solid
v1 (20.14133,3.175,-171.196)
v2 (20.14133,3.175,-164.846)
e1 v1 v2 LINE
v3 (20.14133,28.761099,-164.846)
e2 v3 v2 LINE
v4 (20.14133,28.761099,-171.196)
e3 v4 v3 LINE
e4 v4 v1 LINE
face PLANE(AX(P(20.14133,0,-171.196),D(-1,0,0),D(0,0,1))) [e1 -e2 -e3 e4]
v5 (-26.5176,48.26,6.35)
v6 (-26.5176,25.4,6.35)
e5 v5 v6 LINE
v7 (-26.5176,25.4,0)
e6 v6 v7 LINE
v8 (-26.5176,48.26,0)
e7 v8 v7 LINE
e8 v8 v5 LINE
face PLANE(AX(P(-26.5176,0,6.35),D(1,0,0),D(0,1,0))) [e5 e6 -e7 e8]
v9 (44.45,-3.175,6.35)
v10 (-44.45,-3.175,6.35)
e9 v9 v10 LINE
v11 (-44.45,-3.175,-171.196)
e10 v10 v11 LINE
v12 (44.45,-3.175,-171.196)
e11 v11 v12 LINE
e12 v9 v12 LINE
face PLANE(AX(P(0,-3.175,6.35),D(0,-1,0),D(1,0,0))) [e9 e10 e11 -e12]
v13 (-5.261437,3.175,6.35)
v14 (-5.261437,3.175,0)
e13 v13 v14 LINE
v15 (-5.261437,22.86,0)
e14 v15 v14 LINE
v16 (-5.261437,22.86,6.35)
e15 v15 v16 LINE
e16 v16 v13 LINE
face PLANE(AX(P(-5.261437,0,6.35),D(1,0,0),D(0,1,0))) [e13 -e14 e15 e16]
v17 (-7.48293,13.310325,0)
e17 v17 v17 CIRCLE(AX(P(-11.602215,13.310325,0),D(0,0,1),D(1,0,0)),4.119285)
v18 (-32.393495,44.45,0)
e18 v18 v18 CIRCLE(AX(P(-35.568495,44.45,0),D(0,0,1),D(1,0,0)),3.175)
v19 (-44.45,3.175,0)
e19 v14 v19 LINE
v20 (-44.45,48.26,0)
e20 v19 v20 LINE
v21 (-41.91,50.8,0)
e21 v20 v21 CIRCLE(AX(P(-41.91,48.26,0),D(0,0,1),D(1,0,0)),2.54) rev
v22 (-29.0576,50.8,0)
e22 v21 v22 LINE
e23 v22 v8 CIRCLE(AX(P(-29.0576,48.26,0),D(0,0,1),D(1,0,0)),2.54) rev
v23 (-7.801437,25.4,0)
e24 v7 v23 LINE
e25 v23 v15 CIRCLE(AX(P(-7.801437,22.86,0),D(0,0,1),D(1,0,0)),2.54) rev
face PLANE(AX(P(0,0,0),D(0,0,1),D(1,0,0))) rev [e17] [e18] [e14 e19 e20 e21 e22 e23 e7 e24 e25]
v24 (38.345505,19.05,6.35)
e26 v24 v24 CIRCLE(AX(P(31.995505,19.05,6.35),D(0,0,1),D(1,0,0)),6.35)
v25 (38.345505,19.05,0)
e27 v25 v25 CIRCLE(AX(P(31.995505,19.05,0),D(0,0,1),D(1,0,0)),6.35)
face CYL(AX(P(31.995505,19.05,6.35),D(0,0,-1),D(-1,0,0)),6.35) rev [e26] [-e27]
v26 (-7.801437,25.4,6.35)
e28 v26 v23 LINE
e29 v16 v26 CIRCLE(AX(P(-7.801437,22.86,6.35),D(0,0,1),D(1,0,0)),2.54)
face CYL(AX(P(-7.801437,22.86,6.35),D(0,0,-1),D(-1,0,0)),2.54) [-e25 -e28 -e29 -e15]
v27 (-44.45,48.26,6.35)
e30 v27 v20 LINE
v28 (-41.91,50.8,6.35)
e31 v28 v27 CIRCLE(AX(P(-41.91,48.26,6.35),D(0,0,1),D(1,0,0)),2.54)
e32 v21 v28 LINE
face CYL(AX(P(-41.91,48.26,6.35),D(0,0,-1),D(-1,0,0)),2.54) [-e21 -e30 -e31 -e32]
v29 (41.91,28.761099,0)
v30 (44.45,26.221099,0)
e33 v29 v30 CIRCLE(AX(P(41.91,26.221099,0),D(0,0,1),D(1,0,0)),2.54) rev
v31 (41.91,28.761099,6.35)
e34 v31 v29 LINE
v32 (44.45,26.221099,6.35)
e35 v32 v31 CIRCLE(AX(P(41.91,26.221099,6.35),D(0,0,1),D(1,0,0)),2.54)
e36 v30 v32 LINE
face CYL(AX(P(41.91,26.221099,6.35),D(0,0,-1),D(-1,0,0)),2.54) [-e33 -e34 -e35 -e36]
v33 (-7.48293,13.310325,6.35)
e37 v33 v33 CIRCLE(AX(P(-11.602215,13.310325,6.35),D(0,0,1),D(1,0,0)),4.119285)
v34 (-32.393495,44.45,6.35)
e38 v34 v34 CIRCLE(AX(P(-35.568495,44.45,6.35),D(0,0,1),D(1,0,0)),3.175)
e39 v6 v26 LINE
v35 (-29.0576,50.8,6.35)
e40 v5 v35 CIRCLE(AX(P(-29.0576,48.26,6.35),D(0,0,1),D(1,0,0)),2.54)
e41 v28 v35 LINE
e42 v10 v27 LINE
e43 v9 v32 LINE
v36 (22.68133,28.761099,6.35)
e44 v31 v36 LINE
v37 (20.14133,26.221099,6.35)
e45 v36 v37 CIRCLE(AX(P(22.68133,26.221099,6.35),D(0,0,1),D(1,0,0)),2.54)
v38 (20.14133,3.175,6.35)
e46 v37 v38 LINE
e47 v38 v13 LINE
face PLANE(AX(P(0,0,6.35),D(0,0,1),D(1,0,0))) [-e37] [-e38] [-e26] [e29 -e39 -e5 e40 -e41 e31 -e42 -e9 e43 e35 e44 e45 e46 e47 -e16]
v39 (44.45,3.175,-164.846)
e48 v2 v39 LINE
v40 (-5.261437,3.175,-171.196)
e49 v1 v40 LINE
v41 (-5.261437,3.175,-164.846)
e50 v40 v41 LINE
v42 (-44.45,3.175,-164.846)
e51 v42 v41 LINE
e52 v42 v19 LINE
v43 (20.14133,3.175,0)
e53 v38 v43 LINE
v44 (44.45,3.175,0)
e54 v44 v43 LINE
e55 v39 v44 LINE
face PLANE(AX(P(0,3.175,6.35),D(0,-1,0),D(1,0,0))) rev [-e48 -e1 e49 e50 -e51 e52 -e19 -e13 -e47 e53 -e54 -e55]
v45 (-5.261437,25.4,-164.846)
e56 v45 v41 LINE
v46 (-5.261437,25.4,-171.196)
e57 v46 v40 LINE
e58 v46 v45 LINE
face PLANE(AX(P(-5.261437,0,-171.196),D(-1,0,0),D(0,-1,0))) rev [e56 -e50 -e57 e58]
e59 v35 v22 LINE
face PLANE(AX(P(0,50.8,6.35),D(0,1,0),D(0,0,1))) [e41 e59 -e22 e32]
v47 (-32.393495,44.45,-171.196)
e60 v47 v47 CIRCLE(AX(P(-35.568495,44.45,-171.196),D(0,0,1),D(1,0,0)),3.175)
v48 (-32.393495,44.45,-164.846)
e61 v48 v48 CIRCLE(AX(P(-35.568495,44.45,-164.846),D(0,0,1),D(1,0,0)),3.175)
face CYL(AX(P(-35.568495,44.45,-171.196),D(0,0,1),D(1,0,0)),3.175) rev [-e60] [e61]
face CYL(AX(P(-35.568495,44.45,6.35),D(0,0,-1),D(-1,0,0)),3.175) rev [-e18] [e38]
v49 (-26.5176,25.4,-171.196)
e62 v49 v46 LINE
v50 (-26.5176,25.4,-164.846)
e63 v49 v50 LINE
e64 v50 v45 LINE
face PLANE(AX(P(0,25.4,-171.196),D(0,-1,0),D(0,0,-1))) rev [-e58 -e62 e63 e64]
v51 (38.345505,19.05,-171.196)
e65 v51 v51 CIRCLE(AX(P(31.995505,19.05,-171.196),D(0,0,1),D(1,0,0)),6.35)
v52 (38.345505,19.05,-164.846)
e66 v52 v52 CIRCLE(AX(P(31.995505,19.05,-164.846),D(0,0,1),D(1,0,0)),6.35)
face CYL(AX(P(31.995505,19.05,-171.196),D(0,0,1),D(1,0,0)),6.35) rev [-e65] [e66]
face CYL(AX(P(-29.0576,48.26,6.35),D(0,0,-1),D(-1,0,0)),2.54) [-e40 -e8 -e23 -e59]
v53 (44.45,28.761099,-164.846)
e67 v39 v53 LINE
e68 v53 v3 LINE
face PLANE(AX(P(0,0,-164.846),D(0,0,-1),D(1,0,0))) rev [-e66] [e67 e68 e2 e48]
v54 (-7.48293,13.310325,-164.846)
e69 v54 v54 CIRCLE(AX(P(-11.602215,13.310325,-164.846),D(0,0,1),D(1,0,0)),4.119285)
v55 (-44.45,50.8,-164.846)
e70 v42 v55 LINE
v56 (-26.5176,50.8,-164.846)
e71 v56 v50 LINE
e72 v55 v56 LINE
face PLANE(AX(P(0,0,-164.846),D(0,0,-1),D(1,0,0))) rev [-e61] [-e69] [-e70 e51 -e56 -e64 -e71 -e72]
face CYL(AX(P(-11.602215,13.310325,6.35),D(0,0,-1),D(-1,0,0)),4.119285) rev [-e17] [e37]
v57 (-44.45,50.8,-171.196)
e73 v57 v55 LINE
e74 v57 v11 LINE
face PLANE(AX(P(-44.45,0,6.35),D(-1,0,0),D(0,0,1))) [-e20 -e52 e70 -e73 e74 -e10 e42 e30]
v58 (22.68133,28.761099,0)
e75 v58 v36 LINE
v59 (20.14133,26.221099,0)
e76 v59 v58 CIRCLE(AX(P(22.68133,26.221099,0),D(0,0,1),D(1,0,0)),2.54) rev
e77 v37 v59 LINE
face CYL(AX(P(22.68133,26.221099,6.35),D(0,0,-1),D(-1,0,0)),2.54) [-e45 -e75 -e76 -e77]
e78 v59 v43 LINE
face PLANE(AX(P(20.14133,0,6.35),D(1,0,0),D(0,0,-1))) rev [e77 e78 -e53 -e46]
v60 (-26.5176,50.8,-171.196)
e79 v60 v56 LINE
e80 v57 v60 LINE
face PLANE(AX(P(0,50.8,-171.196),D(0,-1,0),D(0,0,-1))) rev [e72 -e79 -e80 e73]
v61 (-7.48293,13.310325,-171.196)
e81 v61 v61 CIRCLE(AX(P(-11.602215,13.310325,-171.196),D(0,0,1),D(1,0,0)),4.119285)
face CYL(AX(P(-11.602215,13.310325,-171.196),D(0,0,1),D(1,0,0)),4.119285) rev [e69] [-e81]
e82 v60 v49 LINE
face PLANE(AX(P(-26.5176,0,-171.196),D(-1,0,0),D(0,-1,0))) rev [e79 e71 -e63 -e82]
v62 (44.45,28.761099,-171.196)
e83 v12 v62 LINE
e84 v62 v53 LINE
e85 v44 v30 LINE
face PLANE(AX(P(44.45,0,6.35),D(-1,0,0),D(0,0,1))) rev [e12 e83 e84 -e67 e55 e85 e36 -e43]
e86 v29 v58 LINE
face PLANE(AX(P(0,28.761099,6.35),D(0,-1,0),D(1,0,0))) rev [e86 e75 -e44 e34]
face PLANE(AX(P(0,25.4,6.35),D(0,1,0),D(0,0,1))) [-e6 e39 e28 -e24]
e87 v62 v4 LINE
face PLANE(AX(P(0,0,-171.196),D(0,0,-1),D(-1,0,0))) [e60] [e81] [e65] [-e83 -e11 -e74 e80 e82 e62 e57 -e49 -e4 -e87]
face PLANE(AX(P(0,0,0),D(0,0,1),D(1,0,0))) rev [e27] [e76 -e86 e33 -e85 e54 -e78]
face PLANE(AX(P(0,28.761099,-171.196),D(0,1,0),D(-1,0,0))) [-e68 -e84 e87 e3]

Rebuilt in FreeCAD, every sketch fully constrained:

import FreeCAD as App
import Part
import Sketcher
Q = App.Units.Quantity


def edges_at(feature, points):
    """Names of the edges that pass closest to the given points."""
    edges = feature.Shape.Edges
    near = lambda p: min(range(len(edges)), key=lambda i: edges[i].distToShape(Part.Vertex(*p))[0])
    return sorted({f"Edge{near(p) + 1}" for p in points})

doc = App.newDocument("Part")
params = doc.addObject("Spreadsheet::Sheet", "Params")
for row, (alias, value) in enumerate([
    ("sketch1_diameter", "0.5 in"),
    ("sketch1_diameter2", "0.25 in"),
    ("sketch1_height", "1 in"),
    ("sketch1_width", "3.5 in"),
    ("sketch1_width2", "0.706 in"),
    ("pad1_length", "0.25 in"),
    ("sketch2_width", "3.5 in"),
    ("sketch2_height", "0.25 in"),
    ("pad2_length", "6.99 in"),
    ("fillet_radius", "0.1 in"),
], start=1):
    params.set(f"A{row}", alias)
    params.set(f"B{row}", "=" + value)
    params.setAlias(f"B{row}", alias)

body = doc.addObject("PartDesign::Body", "Body")

# Sketch on XY plane
sketch1 = doc.addObject("Sketcher::SketchObject", "Sketch")
body.addObject(sketch1)
sketch1.AttachmentSupport = (doc.XY_Plane, [""])
sketch1.MapMode = "FlatFace"
sketch1.addGeometry([
    Part.LineSegment(App.Vector(44.5, 28.8, 0), App.Vector(20.1, 28.8, 0)),  # 0
    Part.LineSegment(App.Vector(20.1, 28.8, 0), App.Vector(20.1, 3.2, 0)),  # 1
    Part.LineSegment(App.Vector(20.1, 3.2, 0), App.Vector(-5.3, 3.2, 0)),  # 2
    Part.LineSegment(App.Vector(-5.3, 3.2, 0), App.Vector(-5.3, 25.4, 0)),  # 3
    Part.LineSegment(App.Vector(-5.3, 25.4, 0), App.Vector(-26.5, 25.4, 0)),  # 4
    Part.LineSegment(App.Vector(-26.5, 25.4, 0), App.Vector(-26.5, 50.8, 0)),  # 5
    Part.LineSegment(App.Vector(-26.5, 50.8, 0), App.Vector(-44.5, 50.8, 0)),  # 6
    Part.LineSegment(App.Vector(-44.5, 50.8, 0), App.Vector(-44.5, -3.2, 0)),  # 7
    Part.LineSegment(App.Vector(-44.5, -3.2, 0), App.Vector(44.5, -3.2, 0)),  # 8
    Part.LineSegment(App.Vector(44.5, -3.2, 0), App.Vector(44.5, 28.8, 0)),  # 9
    Part.Circle(App.Vector(-11.6, 13.3, 0), App.Vector(0, 0, 1), 4.1),  # 10
    Part.Circle(App.Vector(32, 19.1, 0), App.Vector(0, 0, 1), 6.3),  # 11
    Part.Circle(App.Vector(-35.6, 44.5, 0), App.Vector(0, 0, 1), 3.2),  # 12
], False)
sketch1.addConstraint([
    Sketcher.Constraint("Coincident", 0, 2, 1, 1),
    Sketcher.Constraint("Coincident", 1, 2, 2, 1),
    Sketcher.Constraint("Coincident", 2, 2, 3, 1),
    Sketcher.Constraint("Coincident", 3, 2, 4, 1),
    Sketcher.Constraint("Coincident", 4, 2, 5, 1),
    Sketcher.Constraint("Coincident", 5, 2, 6, 1),
    Sketcher.Constraint("Coincident", 6, 2, 7, 1),
    Sketcher.Constraint("Coincident", 7, 2, 8, 1),
    Sketcher.Constraint("Coincident", 8, 2, 9, 1),
    Sketcher.Constraint("Coincident", 9, 2, 0, 1),
    Sketcher.Constraint("Horizontal", 0),
    Sketcher.Constraint("Vertical", 1),
    Sketcher.Constraint("Horizontal", 2),
    Sketcher.Constraint("Vertical", 3),
    Sketcher.Constraint("Horizontal", 4),
    Sketcher.Constraint("Vertical", 5),
    Sketcher.Constraint("Horizontal", 6),
    Sketcher.Constraint("Vertical", 7),
    Sketcher.Constraint("Horizontal", 8),
    Sketcher.Constraint("Vertical", 9),
    Sketcher.Constraint("Diameter", 11, Q("0.5 in")),
    Sketcher.Constraint("Diameter", 12, Q("0.25 in")),
    Sketcher.Constraint("DistanceY", 5, 1, 5, 2, Q("1 in")),
    Sketcher.Constraint("DistanceX", 8, 1, 8, 2, Q("3.5 in")),
    Sketcher.Constraint("DistanceY", -1, 1, 3, 2, Q("1 in")),
    Sketcher.Constraint("DistanceY", 11, 3, 12, 3, Q("1 in")),
    Sketcher.Constraint("DistanceX", 6, 2, 6, 1, Q("0.706 in")),
    Sketcher.Constraint("DistanceY", 3, 1, 3, 2, Q("0.875 in")),
    Sketcher.Constraint("DistanceY", 7, 2, 7, 1, Q("2.125 in")),
    Sketcher.Constraint("DistanceY", -1, 1, 11, 3, Q("0.75 in")),
    Sketcher.Constraint("DistanceX", 6, 2, -1, 1, Q("1.75 in")),
    Sketcher.Constraint("DistanceX", 12, 3, 11, 3, Q("2.66 in")),
    Sketcher.Constraint("Diameter", 10, 8.23857),
    Sketcher.Constraint("DistanceY", 1, 2, 1, 1, 25.586099),
    Sketcher.Constraint("DistanceX", 0, 2, 11, 3, Q("0.4666998 in")),
    Sketcher.Constraint("DistanceX", 0, 2, 0, 1, 24.30867),
    Sketcher.Constraint("DistanceX", 2, 2, 2, 1, 25.402767),
    Sketcher.Constraint("DistanceX", 10, 3, 11, 3, 43.597721),
    Sketcher.Constraint("DistanceY", -1, 1, 10, 3, 13.310325),
])
sketch1.setExpression("Constraints[20]", "Params.sketch1_diameter")
sketch1.setExpression("Constraints[21]", "Params.sketch1_diameter2")
sketch1.setExpression("Constraints[22]", "Params.sketch1_height")
sketch1.setExpression("Constraints[23]", "Params.sketch1_width")
sketch1.setExpression("Constraints[26]", "Params.sketch1_width2")
pad1 = doc.addObject("PartDesign::Pad", "Pad")
body.addObject(pad1)
pad1.Profile = sketch1
pad1.setExpression("Length", "Params.pad1_length")

# Sketch on XY plane
sketch2 = doc.addObject("Sketcher::SketchObject", "Sketch001")
body.addObject(sketch2)
sketch2.AttachmentSupport = (doc.XY_Plane, [""])
sketch2.MapMode = "FlatFace"
sketch2.AttachmentOffset = App.Placement(App.Vector(0, 0, 0.25 * 25.4), App.Rotation())
sketch2.addGeometry([
    Part.LineSegment(App.Vector(-44, 3, 0), App.Vector(-44, -3, 0)),
    Part.LineSegment(App.Vector(-44, -3, 0), App.Vector(44, -3, 0)),
    Part.LineSegment(App.Vector(44, -3, 0), App.Vector(44, 3, 0)),
    Part.LineSegment(App.Vector(44, 3, 0), App.Vector(-44, 3, 0)),
], False)
sketch2.addConstraint([
    Sketcher.Constraint("Coincident", 0, 2, 1, 1),
    Sketcher.Constraint("Coincident", 1, 2, 2, 1),
    Sketcher.Constraint("Coincident", 2, 2, 3, 1),
    Sketcher.Constraint("Coincident", 3, 2, 0, 1),
    Sketcher.Constraint("Vertical", 0),
    Sketcher.Constraint("Horizontal", 1),
    Sketcher.Constraint("Vertical", 2),
    Sketcher.Constraint("Horizontal", 3),
    Sketcher.Constraint("Symmetric", 0, 2, 2, 2, -1, 1),
    Sketcher.Constraint("DistanceX", 1, 1, 1, 2, Q("3.5 in")),
    Sketcher.Constraint("DistanceY", 0, 2, 0, 1, Q("0.25 in")),
])
sketch2.setExpression("Constraints[9]", "Params.sketch2_width")
sketch2.setExpression("Constraints[10]", "Params.sketch2_height")
pad2 = doc.addObject("PartDesign::Pad", "Pad001")
body.addObject(pad2)
pad2.Profile = sketch2
pad2.setExpression("Length", "Params.pad2_length")
pad2.Reversed = True
doc.recompute()

fillet = doc.addObject("PartDesign::Fillet", "Fillet")
body.addObject(fillet)
fillet.Base = (pad2, edges_at(pad2, [
    (44.45, 28.761, 3.175),
    (-44.45, 50.8, 3.175),
    (-26.518, 50.8, 3.175),
    (-5.261, 25.4, 3.175),
    (20.141, 28.761, 3.175),
]))
fillet.setExpression("Radius", "Params.fillet_radius")
doc.recompute()

datumplane = doc.addObject("PartDesign::Plane", "DatumPlane")
body.addObject(datumplane)
datumplane.AttachmentSupport = (doc.XY_Plane, [""])
datumplane.MapMode = "FlatFace"
datumplane.AttachmentOffset = App.Placement(App.Vector(0, 0, -3.245 * 25.4), App.Rotation())
mirrored = doc.addObject("PartDesign::Mirrored", "Mirrored")
body.addObject(mirrored)
mirrored.Originals = [pad1]
mirrored.MirrorPlane = (datumplane, [""])
body.Tip = mirrored

doc.recompute()
